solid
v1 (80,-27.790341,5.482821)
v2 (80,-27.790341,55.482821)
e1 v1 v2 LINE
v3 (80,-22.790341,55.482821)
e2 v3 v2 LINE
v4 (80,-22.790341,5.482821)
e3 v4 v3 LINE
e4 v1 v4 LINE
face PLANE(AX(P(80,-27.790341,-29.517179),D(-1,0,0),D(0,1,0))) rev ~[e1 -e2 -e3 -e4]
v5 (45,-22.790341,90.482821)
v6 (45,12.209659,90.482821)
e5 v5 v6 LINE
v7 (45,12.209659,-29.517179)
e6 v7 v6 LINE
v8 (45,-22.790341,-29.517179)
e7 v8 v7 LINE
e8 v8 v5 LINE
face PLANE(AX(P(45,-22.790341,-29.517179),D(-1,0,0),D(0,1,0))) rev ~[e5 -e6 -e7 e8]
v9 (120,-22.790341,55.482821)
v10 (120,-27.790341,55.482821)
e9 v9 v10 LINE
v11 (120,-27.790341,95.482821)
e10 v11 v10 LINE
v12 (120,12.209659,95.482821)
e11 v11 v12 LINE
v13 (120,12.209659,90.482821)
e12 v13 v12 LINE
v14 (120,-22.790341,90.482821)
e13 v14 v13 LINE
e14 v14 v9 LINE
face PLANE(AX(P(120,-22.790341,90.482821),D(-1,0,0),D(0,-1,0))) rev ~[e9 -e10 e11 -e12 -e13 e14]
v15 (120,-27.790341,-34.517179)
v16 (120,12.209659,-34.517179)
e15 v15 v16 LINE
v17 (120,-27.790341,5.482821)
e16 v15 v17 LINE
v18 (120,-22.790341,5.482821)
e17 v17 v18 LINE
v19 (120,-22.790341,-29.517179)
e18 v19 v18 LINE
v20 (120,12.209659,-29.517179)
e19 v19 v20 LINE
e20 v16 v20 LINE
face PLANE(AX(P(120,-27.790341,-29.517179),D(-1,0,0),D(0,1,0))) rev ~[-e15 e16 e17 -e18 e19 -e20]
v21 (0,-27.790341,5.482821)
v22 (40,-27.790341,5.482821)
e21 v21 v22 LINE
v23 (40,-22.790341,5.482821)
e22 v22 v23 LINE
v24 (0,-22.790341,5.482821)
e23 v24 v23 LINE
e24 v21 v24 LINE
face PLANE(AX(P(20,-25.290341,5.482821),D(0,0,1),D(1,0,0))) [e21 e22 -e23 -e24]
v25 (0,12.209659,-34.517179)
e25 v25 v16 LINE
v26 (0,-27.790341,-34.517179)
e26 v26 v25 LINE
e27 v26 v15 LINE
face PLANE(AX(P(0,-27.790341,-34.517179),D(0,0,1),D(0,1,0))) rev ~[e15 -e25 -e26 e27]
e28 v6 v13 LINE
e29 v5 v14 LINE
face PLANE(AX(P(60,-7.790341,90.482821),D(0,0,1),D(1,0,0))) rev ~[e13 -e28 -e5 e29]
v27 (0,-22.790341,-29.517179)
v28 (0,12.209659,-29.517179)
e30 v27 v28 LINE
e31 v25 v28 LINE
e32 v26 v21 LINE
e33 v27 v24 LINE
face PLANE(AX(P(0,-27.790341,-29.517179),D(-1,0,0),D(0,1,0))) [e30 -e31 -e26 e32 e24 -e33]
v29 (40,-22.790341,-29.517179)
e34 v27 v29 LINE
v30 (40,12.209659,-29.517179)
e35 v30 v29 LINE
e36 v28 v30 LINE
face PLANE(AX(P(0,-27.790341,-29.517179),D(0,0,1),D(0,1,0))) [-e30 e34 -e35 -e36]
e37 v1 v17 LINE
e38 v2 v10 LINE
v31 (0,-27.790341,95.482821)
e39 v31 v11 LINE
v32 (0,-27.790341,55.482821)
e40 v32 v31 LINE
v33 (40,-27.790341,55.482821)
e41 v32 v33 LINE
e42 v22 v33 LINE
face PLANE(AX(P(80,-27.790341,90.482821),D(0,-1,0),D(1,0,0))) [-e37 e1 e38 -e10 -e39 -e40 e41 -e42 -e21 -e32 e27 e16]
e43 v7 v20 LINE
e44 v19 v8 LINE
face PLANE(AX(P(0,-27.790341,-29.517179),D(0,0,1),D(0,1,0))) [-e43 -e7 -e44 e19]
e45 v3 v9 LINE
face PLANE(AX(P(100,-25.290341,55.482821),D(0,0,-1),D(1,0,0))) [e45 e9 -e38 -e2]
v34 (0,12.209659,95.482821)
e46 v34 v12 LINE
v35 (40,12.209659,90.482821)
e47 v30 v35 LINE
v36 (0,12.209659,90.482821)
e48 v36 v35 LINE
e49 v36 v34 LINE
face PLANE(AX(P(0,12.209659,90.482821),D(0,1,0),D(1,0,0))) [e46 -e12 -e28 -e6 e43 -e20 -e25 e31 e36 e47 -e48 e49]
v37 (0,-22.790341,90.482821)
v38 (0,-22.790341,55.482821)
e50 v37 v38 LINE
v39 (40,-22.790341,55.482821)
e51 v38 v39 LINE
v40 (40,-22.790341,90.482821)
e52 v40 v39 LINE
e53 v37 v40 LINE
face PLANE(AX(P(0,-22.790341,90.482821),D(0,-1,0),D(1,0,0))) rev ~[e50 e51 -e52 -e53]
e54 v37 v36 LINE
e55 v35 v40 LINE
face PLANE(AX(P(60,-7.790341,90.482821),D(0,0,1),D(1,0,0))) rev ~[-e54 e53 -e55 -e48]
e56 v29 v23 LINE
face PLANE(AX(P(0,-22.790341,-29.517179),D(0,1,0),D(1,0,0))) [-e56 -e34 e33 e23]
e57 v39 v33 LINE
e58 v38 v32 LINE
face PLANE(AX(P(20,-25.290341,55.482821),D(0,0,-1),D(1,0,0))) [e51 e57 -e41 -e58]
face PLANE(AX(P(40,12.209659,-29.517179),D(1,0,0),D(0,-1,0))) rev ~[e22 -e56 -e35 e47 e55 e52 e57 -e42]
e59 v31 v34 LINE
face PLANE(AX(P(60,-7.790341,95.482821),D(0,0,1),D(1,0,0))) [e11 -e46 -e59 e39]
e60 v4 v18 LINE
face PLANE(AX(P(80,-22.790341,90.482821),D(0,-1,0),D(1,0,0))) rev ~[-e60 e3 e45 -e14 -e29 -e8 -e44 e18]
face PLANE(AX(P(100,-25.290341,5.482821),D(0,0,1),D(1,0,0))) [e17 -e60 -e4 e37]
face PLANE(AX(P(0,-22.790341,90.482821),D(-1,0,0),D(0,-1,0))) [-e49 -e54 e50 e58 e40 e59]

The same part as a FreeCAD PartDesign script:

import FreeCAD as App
import Part
import Sketcher

V = App.Vector
Q = App.Units.Quantity

doc = App.newDocument("Part")
body = doc.addObject("PartDesign::Body", "Body")

sketch1 = body.newObject("Sketcher::SketchObject", "Sketch")
sketch1.AttachmentSupport = (doc.getObject("YZ_Plane"), [""])
sketch1.MapMode = "FlatFace"
sketch1.addGeometry([
    Part.LineSegment(V(-27.8, -29.5, 0), V(-27.8, -34.5, 0)),
    Part.LineSegment(V(-27.8, -34.5, 0), V(12.2, -34.5, 0)),
    Part.LineSegment(V(12.2, -34.5, 0), V(12.2, -29.5, 0)),
    Part.LineSegment(V(12.2, -29.5, 0), V(-27.8, -29.5, 0)),
], False)
sketch1.addConstraint([
    Sketcher.Constraint("Coincident", 0, 2, 1, 1),
    Sketcher.Constraint("Coincident", 1, 2, 2, 1),
    Sketcher.Constraint("Coincident", 2, 2, 3, 1),
    Sketcher.Constraint("Coincident", 3, 2, 0, 1),
    Sketcher.Constraint("Vertical", 0),
    Sketcher.Constraint("Horizontal", 1),
    Sketcher.Constraint("Vertical", 2),
    Sketcher.Constraint("Horizontal", 3),
    Sketcher.Constraint("DistanceX", 1, 1, 1, 2, Q("40 mm")),
    Sketcher.Constraint("DistanceY", 0, 2, 0, 1, Q("5 mm")),
    Sketcher.Constraint("DistanceX", 0, 2, -1, 1, Q("27.790341 mm")),
    Sketcher.Constraint("DistanceY", 0, 2, -1, 1, Q("34.517179 mm")),
])
pad1 = body.newObject("PartDesign::Pad", "Pad")
pad1.Profile = sketch1
pad1.Length = 120

sketch2 = body.newObject("Sketcher::SketchObject", "Sketch001")
sketch2.AttachmentSupport = (doc.getObject("XY_Plane"), [""])
sketch2.MapMode = "FlatFace"
sketch2.AttachmentOffset = App.Placement(V(0, 0, -29.517179), App.Rotation())
sketch2.addGeometry([
    Part.LineSegment(V(45, 12, 0), V(40, 12, 0)),
    Part.LineSegment(V(40, 12, 0), V(40, -28, 0)),
    Part.LineSegment(V(40, -28, 0), V(80, -28, 0)),
    Part.LineSegment(V(80, -28, 0), V(80, -23, 0)),
    Part.LineSegment(V(80, -23, 0), V(45, -23, 0)),
    Part.LineSegment(V(45, -23, 0), V(45, 12, 0)),
], False)
sketch2.addConstraint([
    Sketcher.Constraint("Coincident", 0, 2, 1, 1),
    Sketcher.Constraint("Coincident", 1, 2, 2, 1),
    Sketcher.Constraint("Coincident", 2, 2, 3, 1),
    Sketcher.Constraint("Coincident", 3, 2, 4, 1),
    Sketcher.Constraint("Coincident", 4, 2, 5, 1),
    Sketcher.Constraint("Coincident", 5, 2, 0, 1),
    Sketcher.Constraint("Horizontal", 0),
    Sketcher.Constraint("Vertical", 1),
    Sketcher.Constraint("Horizontal", 2),
    Sketcher.Constraint("Vertical", 3),
    Sketcher.Constraint("Horizontal", 4),
    Sketcher.Constraint("Vertical", 5),
    Sketcher.Constraint("Equal", 2, 1),
    Sketcher.Constraint("Equal", 0, 3),
    Sketcher.Constraint("DistanceX", 0, 2, 0, 1, Q("5 mm")),
    Sketcher.Constraint("DistanceX", 2, 1, 2, 2, Q("40 mm")),
    Sketcher.Constraint("DistanceX", -1, 1, 0, 2, Q("40 mm")),
    Sketcher.Constraint("DistanceY", -1, 1, 0, 2, Q("12.209659 mm")),
])
pad2 = body.newObject("PartDesign::Pad", "Pad001")
pad2.Profile = sketch2
pad2.Length = 120

sketch3 = body.newObject("Sketcher::SketchObject", "Sketch002")
sketch3.AttachmentSupport = (doc.getObject("XY_Plane"), [""])
sketch3.MapMode = "FlatFace"
sketch3.AttachmentOffset = App.Placement(V(0, 0, 90.482821), App.Rotation())
sketch3.addGeometry([
    Part.LineSegment(V(0, 12, 0), V(0, -28, 0)),
    Part.LineSegment(V(0, -28, 0), V(120, -28, 0)),
    Part.LineSegment(V(120, -28, 0), V(120, 12, 0)),
    Part.LineSegment(V(120, 12, 0), V(0, 12, 0)),
], False)
sketch3.addConstraint([
    Sketcher.Constraint("Coincident", 0, 2, 1, 1),
    Sketcher.Constraint("Coincident", 1, 2, 2, 1),
    Sketcher.Constraint("Coincident", 2, 2, 3, 1),
    Sketcher.Constraint("Coincident", 3, 2, 0, 1),
    Sketcher.Constraint("Vertical", 0),
    Sketcher.Constraint("Horizontal", 1),
    Sketcher.Constraint("Vertical", 2),
    Sketcher.Constraint("Horizontal", 3),
    Sketcher.Constraint("PointOnObject", 0, 2, -2),
    Sketcher.Constraint("DistanceX", 1, 1, 1, 2, Q("120 mm")),
    Sketcher.Constraint("DistanceY", 0, 2, 0, 1, Q("40 mm")),
    Sketcher.Constraint("DistanceY", 0, 2, -1, 1, Q("27.790341 mm")),
])
pad3 = body.newObject("PartDesign::Pad", "Pad002")
pad3.Profile = sketch3
pad3.Length = 5

sketch4 = body.newObject("Sketcher::SketchObject", "Sketch003")
sketch4.AttachmentSupport = (doc.getObject("XY_Plane"), [""])
sketch4.MapMode = "FlatFace"
sketch4.AttachmentOffset = App.Placement(V(0, 0, -29.517179), App.Rotation())
sketch4.addGeometry([
    Part.LineSegment(V(0, -23, 0), V(0, -28, 0)),
    Part.LineSegment(V(0, -28, 0), V(40, -28, 0)),
    Part.LineSegment(V(40, -28, 0), V(40, -23, 0)),
    Part.LineSegment(V(40, -23, 0), V(0, -23, 0)),
], False)
sketch4.addConstraint([
    Sketcher.Constraint("Coincident", 0, 2, 1, 1),
    Sketcher.Constraint("Coincident", 1, 2, 2, 1),
    Sketcher.Constraint("Coincident", 2, 2, 3, 1),
    Sketcher.Constraint("Coincident", 3, 2, 0, 1),
    Sketcher.Constraint("Vertical", 0),
    Sketcher.Constraint("Horizontal", 1),
    Sketcher.Constraint("Vertical", 2),
    Sketcher.Constraint("Horizontal", 3),
    Sketcher.Constraint("PointOnObject", 0, 2, -2),
    Sketcher.Constraint("DistanceX", 1, 1, 1, 2, Q("40 mm")),
    Sketcher.Constraint("DistanceY", 0, 2, 0, 1, Q("5 mm")),
    Sketcher.Constraint("DistanceY", 0, 2, -1, 1, Q("27.790341 mm")),
])
pad4 = body.newObject("PartDesign::Pad", "Pad003")
pad4.Profile = sketch4
pad4.Length = 35

sketch5 = body.newObject("Sketcher::SketchObject", "Sketch004")
sketch5.AttachmentSupport = (doc.getObject("XY_Plane"), [""])
sketch5.MapMode = "FlatFace"
sketch5.AttachmentOffset = App.Placement(V(0, 0, -29.517179), App.Rotation())
sketch5.addGeometry([
    Part.LineSegment(V(80, -23, 0), V(80, -28, 0)),
    Part.LineSegment(V(80, -28, 0), V(120, -28, 0)),
    Part.LineSegment(V(120, -28, 0), V(120, -23, 0)),
    Part.LineSegment(V(120, -23, 0), V(80, -23, 0)),
], False)
sketch5.addConstraint([
    Sketcher.Constraint("Coincident", 0, 2, 1, 1),
    Sketcher.Constraint("Coincident", 1, 2, 2, 1),
    Sketcher.Constraint("Coincident", 2, 2, 3, 1),
    Sketcher.Constraint("Coincident", 3, 2, 0, 1),
    Sketcher.Constraint("Vertical", 0),
    Sketcher.Constraint("Horizontal", 1),
    Sketcher.Constraint("Vertical", 2),
    Sketcher.Constraint("Horizontal", 3),
    Sketcher.Constraint("DistanceX", 1, 1, 1, 2, Q("40 mm")),
    Sketcher.Constraint("DistanceY", 0, 2, 0, 1, Q("5 mm")),
    Sketcher.Constraint("DistanceX", -1, 1, 0, 2, Q("80 mm")),
    Sketcher.Constraint("DistanceY", 0, 2, -1, 1, Q("27.790341 mm")),
])
pad5 = body.newObject("PartDesign::Pad", "Pad004")
pad5.Profile = sketch5
pad5.Length = 35

sketch6 = body.newObject("Sketcher::SketchObject", "Sketch005")
sketch6.AttachmentSupport = (doc.getObject("XY_Plane"), [""])
sketch6.MapMode = "FlatFace"
sketch6.AttachmentOffset = App.Placement(V(0, 0, 90.482821), App.Rotation())
sketch6.addGeometry([
    Part.LineSegment(V(0, -28, 0), V(0, -23, 0)),
    Part.LineSegment(V(0, -23, 0), V(40, -23, 0)),
    Part.LineSegment(V(40, -23, 0), V(40, -28, 0)),
    Part.LineSegment(V(40, -28, 0), V(0, -28, 0)),
], False)
sketch6.addConstraint([
    Sketcher.Constraint("Coincident", 0, 2, 1, 1),
    Sketcher.Constraint("Coincident", 1, 2, 2, 1),
    Sketcher.Constraint("Coincident", 2, 2, 3, 1),
    Sketcher.Constraint("Coincident", 3, 2, 0, 1),
    Sketcher.Constraint("Vertical", 0),
    Sketcher.Constraint("Horizontal", 1),
    Sketcher.Constraint("Vertical", 2),
    Sketcher.Constraint("Horizontal", 3),
    Sketcher.Constraint("PointOnObject", 0, 2, -2),
    Sketcher.Constraint("DistanceX", 1, 1, 1, 2, Q("40 mm")),
    Sketcher.Constraint("DistanceY", 0, 1, 0, 2, Q("5 mm")),
    Sketcher.Constraint("DistanceY", 0, 2, -1, 1, Q("22.790341 mm")),
])
pad6 = body.newObject("PartDesign::Pad", "Pad005")
pad6.Profile = sketch6
pad6.Length = 35
pad6.Reversed = True

sketch7 = body.newObject("Sketcher::SketchObject", "Sketch006")
sketch7.AttachmentSupport = (doc.getObject("XY_Plane"), [""])
sketch7.MapMode = "FlatFace"
sketch7.AttachmentOffset = App.Placement(V(0, 0, 90.482821), App.Rotation())
sketch7.addGeometry([
    Part.LineSegment(V(80, -28, 0), V(80, -23, 0)),
    Part.LineSegment(V(80, -23, 0), V(120, -23, 0)),
    Part.LineSegment(V(120, -23, 0), V(120, -28, 0)),
    Part.LineSegment(V(120, -28, 0), V(80, -28, 0)),
], False)
sketch7.addConstraint([
    Sketcher.Constraint("Coincident", 0, 2, 1, 1),
    Sketcher.Constraint("Coincident", 1, 2, 2, 1),
    Sketcher.Constraint("Coincident", 2, 2, 3, 1),
    Sketcher.Constraint("Coincident", 3, 2, 0, 1),
    Sketcher.Constraint("Vertical", 0),
    Sketcher.Constraint("Horizontal", 1),
    Sketcher.Constraint("Vertical", 2),
    Sketcher.Constraint("Horizontal", 3),
    Sketcher.Constraint("DistanceX", 1, 1, 1, 2, Q("40 mm")),
    Sketcher.Constraint("DistanceY", 0, 1, 0, 2, Q("5 mm")),
    Sketcher.Constraint("DistanceX", -1, 1, 0, 2, Q("80 mm")),
    Sketcher.Constraint("DistanceY", 0, 2, -1, 1, Q("22.790341 mm")),
])
pad7 = body.newObject("PartDesign::Pad", "Pad006")
pad7.Profile = sketch7
pad7.Length = 35
pad7.Reversed = True

doc.recompute()
